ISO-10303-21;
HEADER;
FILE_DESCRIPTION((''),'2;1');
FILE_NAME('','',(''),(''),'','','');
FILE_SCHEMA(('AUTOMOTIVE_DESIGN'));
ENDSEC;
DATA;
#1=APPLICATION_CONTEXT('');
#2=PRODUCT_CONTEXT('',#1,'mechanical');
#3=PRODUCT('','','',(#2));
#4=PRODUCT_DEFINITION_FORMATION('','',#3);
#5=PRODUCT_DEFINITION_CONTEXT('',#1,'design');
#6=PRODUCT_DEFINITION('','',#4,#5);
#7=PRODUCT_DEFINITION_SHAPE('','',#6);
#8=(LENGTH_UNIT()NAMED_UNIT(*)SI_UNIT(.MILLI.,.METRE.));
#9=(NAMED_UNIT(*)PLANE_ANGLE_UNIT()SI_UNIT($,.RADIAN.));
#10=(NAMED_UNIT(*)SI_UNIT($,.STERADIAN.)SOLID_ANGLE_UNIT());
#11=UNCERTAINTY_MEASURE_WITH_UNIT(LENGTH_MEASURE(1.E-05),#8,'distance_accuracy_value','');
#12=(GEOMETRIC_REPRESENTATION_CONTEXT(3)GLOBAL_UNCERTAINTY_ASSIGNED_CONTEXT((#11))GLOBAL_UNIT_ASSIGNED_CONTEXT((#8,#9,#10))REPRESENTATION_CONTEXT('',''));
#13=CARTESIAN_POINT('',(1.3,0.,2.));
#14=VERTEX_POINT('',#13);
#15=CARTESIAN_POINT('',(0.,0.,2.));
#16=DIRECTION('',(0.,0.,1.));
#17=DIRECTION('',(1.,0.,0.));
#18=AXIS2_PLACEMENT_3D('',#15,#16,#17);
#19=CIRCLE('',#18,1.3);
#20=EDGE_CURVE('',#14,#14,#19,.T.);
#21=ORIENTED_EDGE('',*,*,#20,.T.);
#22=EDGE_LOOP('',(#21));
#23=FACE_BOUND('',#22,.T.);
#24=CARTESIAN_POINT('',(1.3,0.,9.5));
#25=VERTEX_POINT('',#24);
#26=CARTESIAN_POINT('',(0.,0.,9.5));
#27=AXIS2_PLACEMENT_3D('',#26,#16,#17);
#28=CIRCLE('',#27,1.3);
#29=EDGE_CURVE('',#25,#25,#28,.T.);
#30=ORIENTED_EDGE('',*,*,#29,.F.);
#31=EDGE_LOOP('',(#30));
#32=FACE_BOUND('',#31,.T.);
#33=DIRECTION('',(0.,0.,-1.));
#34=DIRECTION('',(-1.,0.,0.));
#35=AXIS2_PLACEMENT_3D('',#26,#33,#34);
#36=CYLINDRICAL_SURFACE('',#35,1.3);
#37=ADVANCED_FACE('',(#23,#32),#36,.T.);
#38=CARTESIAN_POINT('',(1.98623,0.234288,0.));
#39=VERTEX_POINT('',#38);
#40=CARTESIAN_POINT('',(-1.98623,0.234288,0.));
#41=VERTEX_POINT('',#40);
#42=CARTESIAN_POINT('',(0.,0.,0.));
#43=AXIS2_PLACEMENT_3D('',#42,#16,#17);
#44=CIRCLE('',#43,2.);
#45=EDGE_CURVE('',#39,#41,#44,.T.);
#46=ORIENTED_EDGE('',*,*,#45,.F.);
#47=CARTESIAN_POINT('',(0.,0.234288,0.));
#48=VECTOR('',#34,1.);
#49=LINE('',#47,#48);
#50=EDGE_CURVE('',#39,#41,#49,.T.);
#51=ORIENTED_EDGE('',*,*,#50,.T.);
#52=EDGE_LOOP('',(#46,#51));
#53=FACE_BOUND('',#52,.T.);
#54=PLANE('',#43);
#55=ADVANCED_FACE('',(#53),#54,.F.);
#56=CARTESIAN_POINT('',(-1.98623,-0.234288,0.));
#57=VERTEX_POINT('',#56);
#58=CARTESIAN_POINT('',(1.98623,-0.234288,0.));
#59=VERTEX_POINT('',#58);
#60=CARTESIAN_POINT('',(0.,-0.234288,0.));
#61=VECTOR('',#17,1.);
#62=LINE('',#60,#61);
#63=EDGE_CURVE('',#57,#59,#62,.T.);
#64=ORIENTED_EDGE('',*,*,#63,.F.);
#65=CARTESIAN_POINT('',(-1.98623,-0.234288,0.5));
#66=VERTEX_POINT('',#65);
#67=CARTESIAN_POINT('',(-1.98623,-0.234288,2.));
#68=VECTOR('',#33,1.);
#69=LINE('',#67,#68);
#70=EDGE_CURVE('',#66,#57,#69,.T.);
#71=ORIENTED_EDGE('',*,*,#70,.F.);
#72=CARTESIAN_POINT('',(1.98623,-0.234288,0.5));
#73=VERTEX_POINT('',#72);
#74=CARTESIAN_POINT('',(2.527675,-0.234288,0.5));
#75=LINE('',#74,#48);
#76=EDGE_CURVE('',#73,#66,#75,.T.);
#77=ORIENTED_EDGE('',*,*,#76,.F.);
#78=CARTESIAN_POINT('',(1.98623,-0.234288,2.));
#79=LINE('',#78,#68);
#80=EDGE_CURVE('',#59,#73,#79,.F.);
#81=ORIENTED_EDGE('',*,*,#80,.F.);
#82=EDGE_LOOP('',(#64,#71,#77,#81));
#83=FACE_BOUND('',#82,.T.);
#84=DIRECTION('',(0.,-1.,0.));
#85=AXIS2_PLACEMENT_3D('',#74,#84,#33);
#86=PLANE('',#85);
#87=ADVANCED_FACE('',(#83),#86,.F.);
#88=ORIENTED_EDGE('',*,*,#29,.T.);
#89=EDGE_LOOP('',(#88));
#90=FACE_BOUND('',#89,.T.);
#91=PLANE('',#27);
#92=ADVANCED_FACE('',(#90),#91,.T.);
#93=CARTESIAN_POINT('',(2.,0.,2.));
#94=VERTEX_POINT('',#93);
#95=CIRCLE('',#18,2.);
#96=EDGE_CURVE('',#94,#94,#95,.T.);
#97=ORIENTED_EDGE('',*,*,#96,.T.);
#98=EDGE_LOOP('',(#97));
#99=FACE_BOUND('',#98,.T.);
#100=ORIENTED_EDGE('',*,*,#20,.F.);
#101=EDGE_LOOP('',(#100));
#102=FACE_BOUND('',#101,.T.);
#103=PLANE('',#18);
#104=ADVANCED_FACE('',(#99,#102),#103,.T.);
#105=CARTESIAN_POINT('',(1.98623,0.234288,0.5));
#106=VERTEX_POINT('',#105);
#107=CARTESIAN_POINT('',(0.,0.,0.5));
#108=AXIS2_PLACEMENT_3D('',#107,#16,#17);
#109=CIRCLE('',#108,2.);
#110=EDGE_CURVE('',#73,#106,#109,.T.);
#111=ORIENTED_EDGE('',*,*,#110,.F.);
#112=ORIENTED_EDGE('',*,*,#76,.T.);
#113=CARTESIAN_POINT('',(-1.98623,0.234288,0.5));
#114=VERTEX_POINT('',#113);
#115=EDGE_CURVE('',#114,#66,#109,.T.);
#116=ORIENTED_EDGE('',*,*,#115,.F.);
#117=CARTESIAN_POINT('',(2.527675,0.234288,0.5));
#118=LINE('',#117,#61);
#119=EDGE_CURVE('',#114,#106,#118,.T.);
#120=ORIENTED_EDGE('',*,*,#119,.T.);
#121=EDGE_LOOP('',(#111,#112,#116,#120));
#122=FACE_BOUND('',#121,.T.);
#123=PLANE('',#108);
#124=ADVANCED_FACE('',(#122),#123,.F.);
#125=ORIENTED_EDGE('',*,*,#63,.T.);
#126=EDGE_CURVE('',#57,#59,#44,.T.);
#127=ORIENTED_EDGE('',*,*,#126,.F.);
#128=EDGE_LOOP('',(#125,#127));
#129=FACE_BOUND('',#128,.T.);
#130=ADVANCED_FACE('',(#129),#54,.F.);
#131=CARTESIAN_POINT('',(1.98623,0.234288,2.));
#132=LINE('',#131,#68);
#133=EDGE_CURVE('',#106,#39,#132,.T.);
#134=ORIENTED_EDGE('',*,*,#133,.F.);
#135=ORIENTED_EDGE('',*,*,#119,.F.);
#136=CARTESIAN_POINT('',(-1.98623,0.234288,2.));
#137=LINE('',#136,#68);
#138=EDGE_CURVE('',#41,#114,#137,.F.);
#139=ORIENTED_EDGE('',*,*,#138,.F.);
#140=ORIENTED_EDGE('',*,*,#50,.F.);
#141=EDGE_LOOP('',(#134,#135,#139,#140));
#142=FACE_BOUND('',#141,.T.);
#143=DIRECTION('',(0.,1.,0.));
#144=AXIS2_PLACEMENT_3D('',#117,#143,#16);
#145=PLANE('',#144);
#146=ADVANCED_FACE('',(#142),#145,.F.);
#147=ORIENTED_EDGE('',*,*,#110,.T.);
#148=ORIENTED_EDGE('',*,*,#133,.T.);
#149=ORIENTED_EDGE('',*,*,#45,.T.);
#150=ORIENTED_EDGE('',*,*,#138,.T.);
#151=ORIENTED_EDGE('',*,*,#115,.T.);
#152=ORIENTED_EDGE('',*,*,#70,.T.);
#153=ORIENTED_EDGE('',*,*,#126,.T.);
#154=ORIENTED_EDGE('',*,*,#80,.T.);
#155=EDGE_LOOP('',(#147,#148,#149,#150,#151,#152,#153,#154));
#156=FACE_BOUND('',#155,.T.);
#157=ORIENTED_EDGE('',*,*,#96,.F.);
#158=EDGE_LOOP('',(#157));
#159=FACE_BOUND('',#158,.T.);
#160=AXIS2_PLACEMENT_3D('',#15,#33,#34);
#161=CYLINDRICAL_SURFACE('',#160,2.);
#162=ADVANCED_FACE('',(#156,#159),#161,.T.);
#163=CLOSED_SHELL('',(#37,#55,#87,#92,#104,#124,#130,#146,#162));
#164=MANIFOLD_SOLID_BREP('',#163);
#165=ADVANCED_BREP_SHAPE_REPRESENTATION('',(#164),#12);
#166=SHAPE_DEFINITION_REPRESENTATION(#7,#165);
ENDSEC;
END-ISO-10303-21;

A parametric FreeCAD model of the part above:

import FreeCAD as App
import Part
import Sketcher
Q = App.Units.Quantity

doc = App.newDocument("Part")
params = doc.addObject("Spreadsheet::Sheet", "Params")
for row, (alias, value) in enumerate([
    ("sketch1_diameter", "4 mm"),
    ("pad1_length", "2 mm"),
    ("sketch2_diameter", "2.6 mm"),
    ("pad2_length", "7.5 mm"),
    ("pocket1_length", "0.5 mm"),
], start=1):
    params.set(f"A{row}", alias)
    params.set(f"B{row}", "=" + value)
    params.setAlias(f"B{row}", alias)

body = doc.addObject("PartDesign::Body", "Body")

sketch1 = doc.addObject("Sketcher::SketchObject", "Sketch")
body.addObject(sketch1)
sketch1.AttachmentSupport = (doc.XY_Plane, [""])
sketch1.MapMode = "FlatFace"
sketch1.addGeometry(Part.Circle(App.Vector(0, 0, 0), App.Vector(0, 0, 1), 2), False)
sketch1.addConstraint([
    Sketcher.Constraint("Coincident", 0, 3, -1, 1),
    Sketcher.Constraint("Diameter", 0, Q("4 mm")),
])
sketch1.setExpression("Constraints[1]", "Params.sketch1_diameter")
pad1 = doc.addObject("PartDesign::Pad", "Pad")
body.addObject(pad1)
pad1.Profile = sketch1
pad1.setExpression("Length", "Params.pad1_length")

sketch2 = doc.addObject("Sketcher::SketchObject", "Sketch001")
body.addObject(sketch2)
sketch2.AttachmentSupport = (doc.XY_Plane, [""])
sketch2.MapMode = "FlatFace"
sketch2.AttachmentOffset = App.Placement(App.Vector(0, 0, 2), App.Rotation())
sketch2.addGeometry(Part.Circle(App.Vector(0, 0, 0), App.Vector(0, 0, 1), 1.3), False)
sketch2.addConstraint([
    Sketcher.Constraint("Coincident", 0, 3, -1, 1),
    Sketcher.Constraint("Diameter", 0, Q("2.6 mm")),
])
sketch2.setExpression("Constraints[1]", "Params.sketch2_diameter")
pad2 = doc.addObject("PartDesign::Pad", "Pad001")
body.addObject(pad2)
pad2.Profile = sketch2
pad2.setExpression("Length", "Params.pad2_length")

sketch3 = doc.addObject("Sketcher::SketchObject", "Sketch002")
body.addObject(sketch3)
sketch3.AttachmentSupport = (doc.XY_Plane, [""])
sketch3.MapMode = "FlatFace"
sketch3.addGeometry([
    Part.LineSegment(App.Vector(2.53, 0.23, 0), App.Vector(2.53, -0.23, 0)),
    Part.LineSegment(App.Vector(2.53, -0.23, 0), App.Vector(-2.53, -0.23, 0)),
    Part.LineSegment(App.Vector(-2.53, -0.23, 0), App.Vector(-2.53, 0.23, 0)),
    Part.LineSegment(App.Vector(-2.53, 0.23, 0), App.Vector(2.53, 0.23, 0)),
], False)
sketch3.addConstraint([
    Sketcher.Constraint("Coincident", 0, 2, 1, 1),
    Sketcher.Constraint("Coincident", 1, 2, 2, 1),
    Sketcher.Constraint("Coincident", 2, 2, 3, 1),
    Sketcher.Constraint("Coincident", 3, 2, 0, 1),
    Sketcher.Constraint("Vertical", 0),
    Sketcher.Constraint("Horizontal", 1),
    Sketcher.Constraint("Vertical", 2),
    Sketcher.Constraint("Horizontal", 3),
    Sketcher.Constraint("Symmetric", 0, 2, 2, 2, -1, 1),
    Sketcher.Constraint("DistanceX", 1, 2, 1, 1, Q("5.05535 mm")),
    Sketcher.Constraint("DistanceY", 0, 2, 0, 1, Q("0.468577 mm")),
])
pocket1 = doc.addObject("PartDesign::Pocket", "Pocket")
body.addObject(pocket1)
pocket1.Profile = sketch3
pocket1.setExpression("Length", "Params.pocket1_length")
pocket1.Reversed = True

doc.recompute()
